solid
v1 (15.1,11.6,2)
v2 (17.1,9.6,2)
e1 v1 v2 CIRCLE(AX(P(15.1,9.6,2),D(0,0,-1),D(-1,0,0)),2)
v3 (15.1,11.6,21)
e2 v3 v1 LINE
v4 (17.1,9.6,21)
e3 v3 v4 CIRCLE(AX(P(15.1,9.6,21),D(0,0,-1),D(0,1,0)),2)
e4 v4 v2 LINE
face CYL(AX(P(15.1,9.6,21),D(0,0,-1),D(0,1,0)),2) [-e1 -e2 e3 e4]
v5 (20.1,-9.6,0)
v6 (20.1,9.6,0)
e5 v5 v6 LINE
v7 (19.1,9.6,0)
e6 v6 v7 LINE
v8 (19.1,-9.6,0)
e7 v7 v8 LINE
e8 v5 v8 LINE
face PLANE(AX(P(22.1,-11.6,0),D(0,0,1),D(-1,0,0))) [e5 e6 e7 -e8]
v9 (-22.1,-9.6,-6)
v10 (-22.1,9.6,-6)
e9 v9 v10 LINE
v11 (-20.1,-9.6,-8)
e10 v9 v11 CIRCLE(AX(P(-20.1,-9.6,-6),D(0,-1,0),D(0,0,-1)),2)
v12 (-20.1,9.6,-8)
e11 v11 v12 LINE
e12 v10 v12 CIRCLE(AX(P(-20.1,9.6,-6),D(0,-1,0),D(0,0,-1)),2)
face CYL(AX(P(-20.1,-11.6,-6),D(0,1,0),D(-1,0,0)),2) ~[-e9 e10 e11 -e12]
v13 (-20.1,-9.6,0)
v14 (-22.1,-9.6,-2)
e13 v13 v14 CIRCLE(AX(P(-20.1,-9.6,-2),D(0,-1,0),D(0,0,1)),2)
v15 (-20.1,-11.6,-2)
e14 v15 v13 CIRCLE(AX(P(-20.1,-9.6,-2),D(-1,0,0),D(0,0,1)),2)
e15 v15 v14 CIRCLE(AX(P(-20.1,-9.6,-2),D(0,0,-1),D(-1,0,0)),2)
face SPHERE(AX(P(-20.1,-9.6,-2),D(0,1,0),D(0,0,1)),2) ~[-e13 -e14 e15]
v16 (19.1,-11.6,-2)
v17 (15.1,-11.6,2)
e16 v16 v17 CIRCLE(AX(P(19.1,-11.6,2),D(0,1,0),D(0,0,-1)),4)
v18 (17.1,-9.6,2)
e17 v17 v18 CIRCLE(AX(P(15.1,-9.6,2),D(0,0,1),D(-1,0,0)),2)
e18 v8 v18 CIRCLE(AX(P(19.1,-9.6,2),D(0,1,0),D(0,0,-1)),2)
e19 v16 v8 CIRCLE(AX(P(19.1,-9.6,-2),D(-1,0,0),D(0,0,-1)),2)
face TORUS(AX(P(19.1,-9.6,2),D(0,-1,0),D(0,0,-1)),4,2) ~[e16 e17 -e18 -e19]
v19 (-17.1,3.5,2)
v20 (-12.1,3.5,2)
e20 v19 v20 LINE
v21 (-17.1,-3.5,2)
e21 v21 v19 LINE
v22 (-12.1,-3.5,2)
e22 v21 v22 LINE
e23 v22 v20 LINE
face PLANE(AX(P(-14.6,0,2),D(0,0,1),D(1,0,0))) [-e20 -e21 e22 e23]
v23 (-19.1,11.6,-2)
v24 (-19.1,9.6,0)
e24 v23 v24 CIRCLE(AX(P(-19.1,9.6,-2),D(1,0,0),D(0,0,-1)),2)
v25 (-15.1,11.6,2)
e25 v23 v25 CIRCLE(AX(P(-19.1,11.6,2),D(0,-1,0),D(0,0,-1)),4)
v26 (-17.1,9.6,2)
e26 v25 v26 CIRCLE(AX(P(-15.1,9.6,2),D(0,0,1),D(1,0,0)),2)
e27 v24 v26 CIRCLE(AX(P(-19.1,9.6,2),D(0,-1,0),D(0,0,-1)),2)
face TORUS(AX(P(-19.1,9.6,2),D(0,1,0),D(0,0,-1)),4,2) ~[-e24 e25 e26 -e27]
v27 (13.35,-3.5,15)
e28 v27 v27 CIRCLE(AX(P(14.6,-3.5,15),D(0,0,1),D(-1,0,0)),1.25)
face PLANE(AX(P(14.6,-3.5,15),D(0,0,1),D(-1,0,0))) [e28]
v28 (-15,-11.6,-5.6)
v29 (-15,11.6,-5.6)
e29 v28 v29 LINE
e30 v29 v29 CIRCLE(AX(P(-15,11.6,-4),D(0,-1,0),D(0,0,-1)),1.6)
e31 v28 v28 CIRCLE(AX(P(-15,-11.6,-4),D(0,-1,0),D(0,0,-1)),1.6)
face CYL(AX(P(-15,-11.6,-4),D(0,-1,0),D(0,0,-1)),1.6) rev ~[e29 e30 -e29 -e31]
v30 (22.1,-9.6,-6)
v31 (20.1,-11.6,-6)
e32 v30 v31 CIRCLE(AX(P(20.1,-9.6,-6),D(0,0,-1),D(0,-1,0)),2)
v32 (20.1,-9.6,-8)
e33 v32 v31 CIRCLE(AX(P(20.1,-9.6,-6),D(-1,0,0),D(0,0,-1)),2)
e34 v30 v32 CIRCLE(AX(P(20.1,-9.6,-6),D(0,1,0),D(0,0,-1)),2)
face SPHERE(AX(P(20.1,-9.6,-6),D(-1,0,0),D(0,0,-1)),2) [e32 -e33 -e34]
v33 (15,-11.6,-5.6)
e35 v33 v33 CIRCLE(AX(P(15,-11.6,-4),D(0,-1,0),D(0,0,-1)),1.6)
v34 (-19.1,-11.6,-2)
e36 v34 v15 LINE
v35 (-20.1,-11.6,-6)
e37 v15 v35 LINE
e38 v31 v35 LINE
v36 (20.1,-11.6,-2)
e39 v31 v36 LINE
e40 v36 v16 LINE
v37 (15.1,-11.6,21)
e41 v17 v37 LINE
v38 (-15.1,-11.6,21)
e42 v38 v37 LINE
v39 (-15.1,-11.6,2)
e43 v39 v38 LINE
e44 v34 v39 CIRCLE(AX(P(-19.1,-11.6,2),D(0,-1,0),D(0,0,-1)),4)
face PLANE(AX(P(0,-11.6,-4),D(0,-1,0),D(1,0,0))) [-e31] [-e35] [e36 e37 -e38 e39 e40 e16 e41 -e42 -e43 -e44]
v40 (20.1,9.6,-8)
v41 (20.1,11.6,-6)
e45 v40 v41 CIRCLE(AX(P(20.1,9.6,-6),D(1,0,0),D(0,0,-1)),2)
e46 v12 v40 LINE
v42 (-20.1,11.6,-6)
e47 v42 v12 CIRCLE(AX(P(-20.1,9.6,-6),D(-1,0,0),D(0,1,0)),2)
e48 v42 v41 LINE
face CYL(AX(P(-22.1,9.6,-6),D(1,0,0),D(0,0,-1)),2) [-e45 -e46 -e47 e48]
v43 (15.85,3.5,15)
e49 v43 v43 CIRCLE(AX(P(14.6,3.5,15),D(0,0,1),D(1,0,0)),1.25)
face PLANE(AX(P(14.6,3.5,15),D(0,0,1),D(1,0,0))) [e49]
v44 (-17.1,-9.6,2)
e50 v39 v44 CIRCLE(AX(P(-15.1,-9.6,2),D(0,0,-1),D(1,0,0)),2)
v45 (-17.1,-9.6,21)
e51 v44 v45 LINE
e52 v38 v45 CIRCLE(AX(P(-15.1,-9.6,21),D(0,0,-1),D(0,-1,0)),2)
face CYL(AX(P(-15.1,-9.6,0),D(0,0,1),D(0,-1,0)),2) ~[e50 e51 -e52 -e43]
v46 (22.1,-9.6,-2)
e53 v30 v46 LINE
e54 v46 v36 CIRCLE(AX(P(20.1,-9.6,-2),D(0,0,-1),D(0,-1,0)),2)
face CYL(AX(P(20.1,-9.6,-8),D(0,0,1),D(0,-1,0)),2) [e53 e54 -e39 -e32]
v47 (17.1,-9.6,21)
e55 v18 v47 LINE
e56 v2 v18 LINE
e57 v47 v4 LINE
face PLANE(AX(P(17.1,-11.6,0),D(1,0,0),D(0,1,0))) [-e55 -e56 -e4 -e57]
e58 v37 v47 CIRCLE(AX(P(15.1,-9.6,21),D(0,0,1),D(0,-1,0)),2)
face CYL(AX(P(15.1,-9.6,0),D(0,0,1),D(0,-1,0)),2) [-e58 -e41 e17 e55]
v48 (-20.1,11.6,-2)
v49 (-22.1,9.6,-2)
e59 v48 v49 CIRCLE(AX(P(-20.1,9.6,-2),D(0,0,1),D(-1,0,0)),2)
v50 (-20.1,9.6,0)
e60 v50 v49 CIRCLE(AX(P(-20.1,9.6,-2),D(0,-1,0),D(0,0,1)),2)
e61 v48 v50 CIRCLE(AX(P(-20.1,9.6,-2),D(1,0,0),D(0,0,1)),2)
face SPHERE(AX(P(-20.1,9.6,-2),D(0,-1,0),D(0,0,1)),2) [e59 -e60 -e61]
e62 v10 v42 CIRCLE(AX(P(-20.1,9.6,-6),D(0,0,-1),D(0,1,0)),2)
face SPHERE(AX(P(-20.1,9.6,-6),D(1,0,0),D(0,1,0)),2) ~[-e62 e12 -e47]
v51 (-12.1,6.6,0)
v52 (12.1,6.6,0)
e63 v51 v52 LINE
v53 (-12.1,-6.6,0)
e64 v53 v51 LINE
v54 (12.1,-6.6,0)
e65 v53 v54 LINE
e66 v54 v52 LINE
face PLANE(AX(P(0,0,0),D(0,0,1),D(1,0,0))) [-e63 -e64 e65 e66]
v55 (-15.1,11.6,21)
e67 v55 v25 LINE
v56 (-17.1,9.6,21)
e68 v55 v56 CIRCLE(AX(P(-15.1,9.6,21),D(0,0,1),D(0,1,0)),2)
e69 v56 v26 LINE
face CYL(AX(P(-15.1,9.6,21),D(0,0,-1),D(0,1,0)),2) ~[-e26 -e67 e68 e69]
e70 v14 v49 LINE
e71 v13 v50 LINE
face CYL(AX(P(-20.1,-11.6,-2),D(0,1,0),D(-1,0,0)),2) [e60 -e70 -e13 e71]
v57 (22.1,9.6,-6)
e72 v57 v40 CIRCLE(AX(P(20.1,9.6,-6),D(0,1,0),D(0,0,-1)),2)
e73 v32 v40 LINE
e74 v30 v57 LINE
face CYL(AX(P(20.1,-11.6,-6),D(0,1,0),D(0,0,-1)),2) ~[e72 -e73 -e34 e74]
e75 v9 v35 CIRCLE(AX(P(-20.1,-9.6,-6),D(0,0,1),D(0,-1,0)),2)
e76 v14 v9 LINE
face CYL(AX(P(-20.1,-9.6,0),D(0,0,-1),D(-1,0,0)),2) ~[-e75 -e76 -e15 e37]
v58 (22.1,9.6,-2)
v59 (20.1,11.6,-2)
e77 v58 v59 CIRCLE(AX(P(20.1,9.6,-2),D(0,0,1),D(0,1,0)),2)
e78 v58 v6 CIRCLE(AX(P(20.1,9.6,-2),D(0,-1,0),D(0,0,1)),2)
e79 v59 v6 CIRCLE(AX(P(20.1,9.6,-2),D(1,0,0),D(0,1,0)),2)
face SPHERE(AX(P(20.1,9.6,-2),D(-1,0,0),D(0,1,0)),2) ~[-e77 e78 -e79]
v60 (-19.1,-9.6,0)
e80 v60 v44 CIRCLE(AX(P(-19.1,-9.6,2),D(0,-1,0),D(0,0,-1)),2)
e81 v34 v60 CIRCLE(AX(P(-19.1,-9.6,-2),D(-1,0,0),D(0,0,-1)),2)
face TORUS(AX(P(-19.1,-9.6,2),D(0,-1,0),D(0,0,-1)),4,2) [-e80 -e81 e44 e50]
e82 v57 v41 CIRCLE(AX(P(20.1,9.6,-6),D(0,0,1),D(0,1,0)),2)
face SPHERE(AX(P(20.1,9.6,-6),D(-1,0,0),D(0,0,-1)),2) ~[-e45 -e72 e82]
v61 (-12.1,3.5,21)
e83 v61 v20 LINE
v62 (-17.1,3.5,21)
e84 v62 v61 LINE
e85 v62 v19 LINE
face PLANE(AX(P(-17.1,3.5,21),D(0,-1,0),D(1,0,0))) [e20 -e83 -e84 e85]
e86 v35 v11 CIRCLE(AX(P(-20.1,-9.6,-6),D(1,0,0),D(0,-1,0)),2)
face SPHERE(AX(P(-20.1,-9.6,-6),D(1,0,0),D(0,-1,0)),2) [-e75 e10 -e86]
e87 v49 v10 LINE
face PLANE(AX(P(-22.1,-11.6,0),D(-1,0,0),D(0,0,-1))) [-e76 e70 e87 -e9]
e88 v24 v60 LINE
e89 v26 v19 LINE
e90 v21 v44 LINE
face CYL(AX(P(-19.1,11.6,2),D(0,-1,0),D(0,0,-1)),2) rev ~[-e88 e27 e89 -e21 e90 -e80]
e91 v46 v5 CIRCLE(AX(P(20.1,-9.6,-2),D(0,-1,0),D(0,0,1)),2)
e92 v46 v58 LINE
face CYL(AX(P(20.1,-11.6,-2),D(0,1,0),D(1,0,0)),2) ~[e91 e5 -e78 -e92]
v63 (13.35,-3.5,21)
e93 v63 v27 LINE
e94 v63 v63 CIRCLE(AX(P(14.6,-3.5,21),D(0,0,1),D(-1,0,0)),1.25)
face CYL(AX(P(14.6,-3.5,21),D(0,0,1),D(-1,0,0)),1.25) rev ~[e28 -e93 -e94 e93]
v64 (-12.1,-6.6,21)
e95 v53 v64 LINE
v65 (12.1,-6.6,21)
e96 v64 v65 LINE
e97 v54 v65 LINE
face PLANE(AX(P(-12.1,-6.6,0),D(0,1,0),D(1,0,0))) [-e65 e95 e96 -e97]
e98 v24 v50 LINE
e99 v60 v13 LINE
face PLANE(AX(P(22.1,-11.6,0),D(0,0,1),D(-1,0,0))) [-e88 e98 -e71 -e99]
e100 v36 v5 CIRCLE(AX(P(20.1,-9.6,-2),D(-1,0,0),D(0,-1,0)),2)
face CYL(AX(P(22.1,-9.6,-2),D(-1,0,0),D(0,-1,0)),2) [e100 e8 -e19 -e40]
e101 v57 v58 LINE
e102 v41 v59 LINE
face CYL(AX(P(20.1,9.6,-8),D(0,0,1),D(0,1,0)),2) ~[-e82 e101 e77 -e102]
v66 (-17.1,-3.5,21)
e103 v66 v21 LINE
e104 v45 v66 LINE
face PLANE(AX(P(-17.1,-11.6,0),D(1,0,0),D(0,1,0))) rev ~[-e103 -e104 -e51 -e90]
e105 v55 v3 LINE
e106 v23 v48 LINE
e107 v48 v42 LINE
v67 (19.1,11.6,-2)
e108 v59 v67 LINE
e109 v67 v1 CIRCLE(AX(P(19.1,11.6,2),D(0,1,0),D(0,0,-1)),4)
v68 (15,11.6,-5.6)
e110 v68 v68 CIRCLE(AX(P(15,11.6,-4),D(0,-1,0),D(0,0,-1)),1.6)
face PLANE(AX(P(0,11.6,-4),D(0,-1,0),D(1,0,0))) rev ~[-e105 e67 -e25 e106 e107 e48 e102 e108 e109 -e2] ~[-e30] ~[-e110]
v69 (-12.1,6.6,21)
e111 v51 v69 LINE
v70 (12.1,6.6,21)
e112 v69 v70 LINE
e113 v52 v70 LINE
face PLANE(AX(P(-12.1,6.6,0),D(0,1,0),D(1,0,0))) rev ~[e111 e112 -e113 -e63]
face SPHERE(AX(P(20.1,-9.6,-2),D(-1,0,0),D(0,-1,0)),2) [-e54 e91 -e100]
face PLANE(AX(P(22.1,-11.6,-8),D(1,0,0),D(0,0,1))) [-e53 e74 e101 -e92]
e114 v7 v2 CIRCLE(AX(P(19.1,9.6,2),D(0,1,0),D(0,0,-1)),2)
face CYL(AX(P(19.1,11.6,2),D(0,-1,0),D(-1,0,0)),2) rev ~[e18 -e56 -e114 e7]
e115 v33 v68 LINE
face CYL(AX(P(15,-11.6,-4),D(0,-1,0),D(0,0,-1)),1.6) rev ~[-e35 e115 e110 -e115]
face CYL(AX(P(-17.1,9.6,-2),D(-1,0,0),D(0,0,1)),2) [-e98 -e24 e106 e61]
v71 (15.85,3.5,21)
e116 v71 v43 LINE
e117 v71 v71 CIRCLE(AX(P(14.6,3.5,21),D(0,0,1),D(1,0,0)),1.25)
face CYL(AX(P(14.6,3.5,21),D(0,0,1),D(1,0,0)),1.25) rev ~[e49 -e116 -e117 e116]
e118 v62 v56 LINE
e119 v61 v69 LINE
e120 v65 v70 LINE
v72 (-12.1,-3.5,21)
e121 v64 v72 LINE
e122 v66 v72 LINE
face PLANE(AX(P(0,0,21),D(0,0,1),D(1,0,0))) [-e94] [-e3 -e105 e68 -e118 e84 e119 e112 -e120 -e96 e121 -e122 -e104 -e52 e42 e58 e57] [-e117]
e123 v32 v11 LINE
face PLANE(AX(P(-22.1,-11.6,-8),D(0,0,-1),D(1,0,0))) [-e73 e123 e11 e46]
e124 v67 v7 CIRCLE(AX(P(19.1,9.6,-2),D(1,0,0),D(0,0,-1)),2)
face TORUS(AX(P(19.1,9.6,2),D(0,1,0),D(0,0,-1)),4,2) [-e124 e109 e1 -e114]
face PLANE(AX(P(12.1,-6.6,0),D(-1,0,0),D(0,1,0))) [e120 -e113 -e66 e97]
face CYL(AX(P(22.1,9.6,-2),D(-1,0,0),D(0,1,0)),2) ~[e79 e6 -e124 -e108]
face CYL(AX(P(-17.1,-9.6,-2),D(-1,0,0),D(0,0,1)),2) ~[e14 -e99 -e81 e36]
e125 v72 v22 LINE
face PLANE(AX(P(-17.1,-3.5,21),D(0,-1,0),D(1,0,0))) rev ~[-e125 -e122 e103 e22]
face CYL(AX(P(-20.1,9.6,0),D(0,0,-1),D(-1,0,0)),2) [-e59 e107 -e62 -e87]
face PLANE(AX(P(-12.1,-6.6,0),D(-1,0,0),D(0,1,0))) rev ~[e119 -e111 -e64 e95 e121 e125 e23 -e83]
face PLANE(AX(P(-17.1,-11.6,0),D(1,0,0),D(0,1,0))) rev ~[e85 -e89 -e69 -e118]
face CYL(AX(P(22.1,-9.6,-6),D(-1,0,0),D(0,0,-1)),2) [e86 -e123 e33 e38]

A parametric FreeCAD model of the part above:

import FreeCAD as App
import Part
import Sketcher
from FreeCAD import Vector


def edges_at(feature, points):
    """Names of the edges that pass closest to the given points."""
    edges = feature.Shape.Edges
    near = lambda p: min(range(len(edges)), key=lambda i: edges[i].distToShape(Part.Vertex(*p))[0])
    return sorted({f"Edge{near(p) + 1}" for p in points})

doc = App.newDocument("Part")
body = doc.addObject("PartDesign::Body", "Body")

# Sketch on XY plane
sketch1 = body.newObject("Sketcher::SketchObject", "Sketch")
sketch1.AttachmentSupport = (doc.getObject("XY_Plane"), [""])
sketch1.MapMode = "FlatFace"
sketch1.addGeometry(Part.LineSegment(Vector(-17.1, 11.6, 0), Vector(-17.1, -11.6, 0)), False)
sketch1.addGeometry(Part.LineSegment(Vector(-17.1, -11.6, 0), Vector(17.1, -11.6, 0)), False)
sketch1.addGeometry(Part.LineSegment(Vector(17.1, -11.6, 0), Vector(17.1, 11.6, 0)), False)
sketch1.addGeometry(Part.LineSegment(Vector(17.1, 11.6, 0), Vector(-17.1, 11.6, 0)), False)
sketch1.addGeometry(Part.LineSegment(Vector(12.1, -6.6, 0), Vector(-12.1, -6.6, 0)), False)
sketch1.addGeometry(Part.LineSegment(Vector(-12.1, -6.6, 0), Vector(-12.1, 6.6, 0)), False)
sketch1.addGeometry(Part.LineSegment(Vector(-12.1, 6.6, 0), Vector(12.1, 6.6, 0)), False)
sketch1.addGeometry(Part.LineSegment(Vector(12.1, 6.6, 0), Vector(12.1, -6.6, 0)), False)
sketch1.addConstraint(Sketcher.Constraint("Coincident", 0, 2, 1, 1))
sketch1.addConstraint(Sketcher.Constraint("Coincident", 1, 2, 2, 1))
sketch1.addConstraint(Sketcher.Constraint("Coincident", 2, 2, 3, 1))
sketch1.addConstraint(Sketcher.Constraint("Coincident", 3, 2, 0, 1))
sketch1.addConstraint(Sketcher.Constraint("Coincident", 4, 2, 5, 1))
sketch1.addConstraint(Sketcher.Constraint("Coincident", 5, 2, 6, 1))
sketch1.addConstraint(Sketcher.Constraint("Coincident", 6, 2, 7, 1))
sketch1.addConstraint(Sketcher.Constraint("Coincident", 7, 2, 4, 1))
sketch1.addConstraint(Sketcher.Constraint("Vertical", 0))
sketch1.addConstraint(Sketcher.Constraint("Horizontal", 1))
sketch1.addConstraint(Sketcher.Constraint("Vertical", 2))
sketch1.addConstraint(Sketcher.Constraint("Horizontal", 3))
sketch1.addConstraint(Sketcher.Constraint("Horizontal", 4))
sketch1.addConstraint(Sketcher.Constraint("Vertical", 5))
sketch1.addConstraint(Sketcher.Constraint("Horizontal", 6))
sketch1.addConstraint(Sketcher.Constraint("Vertical", 7))
sketch1.addConstraint(Sketcher.Constraint("Symmetric", 0, 2, 2, 2, -1, 1))
sketch1.addConstraint(Sketcher.Constraint("Symmetric", 4, 2, 6, 2, -1, 1))
sketch1.addConstraint(Sketcher.Constraint("DistanceX", 1, 1, 1, 2, 34.2))
sketch1.addConstraint(Sketcher.Constraint("DistanceX", 4, 2, 4, 1, 24.2))
sketch1.addConstraint(Sketcher.Constraint("DistanceY", 0, 2, 0, 1, 23.2))
sketch1.addConstraint(Sketcher.Constraint("DistanceY", 5, 1, 5, 2, 13.2))
pad1 = body.newObject("PartDesign::Pad", "Pad")
pad1.Profile = sketch1
pad1.Length = 21

# Sketch on XY plane
sketch2 = body.newObject("Sketcher::SketchObject", "Sketch001")
sketch2.AttachmentSupport = (doc.getObject("XY_Plane"), [""])
sketch2.MapMode = "FlatFace"
sketch2.addGeometry(Part.LineSegment(Vector(-17.1, 11.6, 0), Vector(-17.1, -11.6, 0)), False)
sketch2.addGeometry(Part.LineSegment(Vector(-17.1, -11.6, 0), Vector(17.1, -11.6, 0)), False)
sketch2.addGeometry(Part.LineSegment(Vector(17.1, -11.6, 0), Vector(17.1, 11.6, 0)), False)
sketch2.addGeometry(Part.LineSegment(Vector(17.1, 11.6, 0), Vector(-17.1, 11.6, 0)), False)
sketch2.addConstraint(Sketcher.Constraint("Coincident", 0, 2, 1, 1))
sketch2.addConstraint(Sketcher.Constraint("Coincident", 1, 2, 2, 1))
sketch2.addConstraint(Sketcher.Constraint("Coincident", 2, 2, 3, 1))
sketch2.addConstraint(Sketcher.Constraint("Coincident", 3, 2, 0, 1))
sketch2.addConstraint(Sketcher.Constraint("Vertical", 0))
sketch2.addConstraint(Sketcher.Constraint("Horizontal", 1))
sketch2.addConstraint(Sketcher.Constraint("Vertical", 2))
sketch2.addConstraint(Sketcher.Constraint("Horizontal", 3))
sketch2.addConstraint(Sketcher.Constraint("Symmetric", 0, 2, 2, 2, -1, 1))
sketch2.addConstraint(Sketcher.Constraint("DistanceX", 1, 1, 1, 2, 34.2))
sketch2.addConstraint(Sketcher.Constraint("DistanceY", 0, 2, 0, 1, 23.2))
pad2 = body.newObject("PartDesign::Pad", "Pad001")
pad2.Profile = sketch2
pad2.Length = 8
pad2.Reversed = True

# Sketch on XZ plane
sketch3 = body.newObject("Sketcher::SketchObject", "Sketch002")
sketch3.AttachmentSupport = (doc.getObject("XZ_Plane"), [""])
sketch3.MapMode = "FlatFace"
sketch3.AttachmentOffset = App.Placement(Vector(0, 0, 11.6), App.Rotation())
sketch3.addGeometry(Part.LineSegment(Vector(-22.1, 0, 0), Vector(-22.1, -8, 0)), False)
sketch3.addGeometry(Part.LineSegment(Vector(-22.1, -8, 0), Vector(22.1, -8, 0)), False)
sketch3.addGeometry(Part.LineSegment(Vector(22.1, -8, 0), Vector(22.1, 0, 0)), False)
sketch3.addGeometry(Part.LineSegment(Vector(22.1, 0, 0), Vector(-22.1, 0, 0)), False)
sketch3.addConstraint(Sketcher.Constraint("Coincident", 0, 2, 1, 1))
sketch3.addConstraint(Sketcher.Constraint("Coincident", 1, 2, 2, 1))
sketch3.addConstraint(Sketcher.Constraint("Coincident", 2, 2, 3, 1))
sketch3.addConstraint(Sketcher.Constraint("Coincident", 3, 2, 0, 1))
sketch3.addConstraint(Sketcher.Constraint("Vertical", 0))
sketch3.addConstraint(Sketcher.Constraint("Horizontal", 1))
sketch3.addConstraint(Sketcher.Constraint("Vertical", 2))
sketch3.addConstraint(Sketcher.Constraint("Horizontal", 3))
sketch3.addConstraint(Sketcher.Constraint("Symmetric", 2, 2, 3, 2, -1, 1))
sketch3.addConstraint(Sketcher.Constraint("DistanceY", 0, 2, 0, 1, 8.0))
sketch3.addConstraint(Sketcher.Constraint("DistanceX", 1, 1, 1, 2, 44.2))
pad3 = body.newObject("PartDesign::Pad", "Pad002")
pad3.Profile = sketch3
pad3.Length = 23.2
pad3.Reversed = True

# Sketch on XZ plane
sketch4 = body.newObject("Sketcher::SketchObject", "Sketch003")
sketch4.AttachmentSupport = (doc.getObject("XZ_Plane"), [""])
sketch4.MapMode = "FlatFace"
sketch4.AttachmentOffset = App.Placement(Vector(0, 0, 11.6), App.Rotation())
sketch4.addGeometry(Part.Circle(Vector(-15, -4, 0), Vector(0, 0, 1), 1.6), False)
sketch4.addGeometry(Part.Circle(Vector(15, -4, 0), Vector(0, 0, 1), 1.6), False)
sketch4.addConstraint(Sketcher.Constraint("Equal", 0, 1))
sketch4.addConstraint(Sketcher.Constraint("Symmetric", 0, 3, 1, 3, -2))
sketch4.addConstraint(Sketcher.Constraint("Diameter", 0, 3.2))
sketch4.addConstraint(Sketcher.Constraint("DistanceX", 0, 3, -1, 1, 15.0))
sketch4.addConstraint(Sketcher.Constraint("DistanceY", 0, 3, -1, 1, 4.0))
pocket1 = body.newObject("PartDesign::Pocket", "Pocket")
pocket1.Profile = sketch4
pocket1.Type = "ThroughAll"
doc.recompute()

fillet = body.newObject("PartDesign::Fillet", "Fillet")
fillet.Base = (pocket1, edges_at(pocket1, [
    (0, -11.6, -8),
    (0, 11.6, -8),
    (-17.1, 0, 0),
    (22.1, 0, -8),
    (17.1, 0, 0),
    (-22.1, 0, 0),
    (19.6, -11.6, 0),
    (22.1, -11.6, -4),
    (-19.6, -11.6, 0),
    (-22.1, -11.6, -4),
    (19.6, 11.6, 0),
    (22.1, 11.6, -4),
    (-19.6, 11.6, 0),
    (-22.1, 11.6, -4),
    (22.1, 0, 0),
    (-22.1, 0, -8),
    (-17.1, -11.6, 10.5),
    (-17.1, 11.6, 10.5),
    (17.1, 11.6, 10.5),
    (17.1, -11.6, 10.5),
]))
fillet.Radius = 2

# Sketch on XY plane
sketch5 = body.newObject("Sketcher::SketchObject", "Sketch004")
sketch5.AttachmentSupport = (doc.getObject("XY_Plane"), [""])
sketch5.MapMode = "FlatFace"
sketch5.AttachmentOffset = App.Placement(Vector(0, 0, 21), App.Rotation())
sketch5.addGeometry(Part.LineSegment(Vector(-17.1, 3.5, 0), Vector(-17.1, -3.5, 0)), False)
sketch5.addGeometry(Part.LineSegment(Vector(-17.1, -3.5, 0), Vector(-12.1, -3.5, 0)), False)
sketch5.addGeometry(Part.LineSegment(Vector(-12.1, -3.5, 0), Vector(-12.1, 3.5, 0)), False)
sketch5.addGeometry(Part.LineSegment(Vector(-12.1, 3.5, 0), Vector(-17.1, 3.5, 0)), False)
sketch5.addConstraint(Sketcher.Constraint("Coincident", 0, 2, 1, 1))
sketch5.addConstraint(Sketcher.Constraint("Coincident", 1, 2, 2, 1))
sketch5.addConstraint(Sketcher.Constraint("Coincident", 2, 2, 3, 1))
sketch5.addConstraint(Sketcher.Constraint("Coincident", 3, 2, 0, 1))
sketch5.addConstraint(Sketcher.Constraint("Vertical", 0))
sketch5.addConstraint(Sketcher.Constraint("Horizontal", 1))
sketch5.addConstraint(Sketcher.Constraint("Vertical", 2))
sketch5.addConstraint(Sketcher.Constraint("Horizontal", 3))
sketch5.addConstraint(Sketcher.Constraint("DistanceX", 1, 1, 1, 2, 5.0))
sketch5.addConstraint(Sketcher.Constraint("DistanceY", 0, 2, 0, 1, 7.0))
sketch5.addConstraint(Sketcher.Constraint("DistanceX", 0, 2, -1, 1, 17.1))
sketch5.addConstraint(Sketcher.Constraint("DistanceY", 0, 2, -1, 1, 3.5))
pocket2 = body.newObject("PartDesign::Pocket", "Pocket001")
pocket2.Profile = sketch5
pocket2.Length = 19

# Sketch on XY plane
sketch6 = body.newObject("Sketcher::SketchObject", "Sketch005")
sketch6.AttachmentSupport = (doc.getObject("XY_Plane"), [""])
sketch6.MapMode = "FlatFace"
sketch6.AttachmentOffset = App.Placement(Vector(0, 0, 21), App.Rotation())
sketch6.addGeometry(Part.Circle(Vector(14.6, 3.5, 0), Vector(0, 0, 1), 1.25), False)
sketch6.addGeometry(Part.Circle(Vector(14.6, -3.5, 0), Vector(0, 0, 1), 1.25), False)
sketch6.addConstraint(Sketcher.Constraint("Equal", 0, 1))
sketch6.addConstraint(Sketcher.Constraint("Symmetric", 0, 3, 1, 3, -1))
sketch6.addConstraint(Sketcher.Constraint("Diameter", 0, 2.5))
sketch6.addConstraint(Sketcher.Constraint("DistanceY", 1, 3, 0, 3, 7.0))
sketch6.addConstraint(Sketcher.Constraint("DistanceX", -1, 1, 0, 3, 14.6))
pocket3 = body.newObject("PartDesign::Pocket", "Pocket002")
pocket3.Profile = sketch6
pocket3.Length = 6

doc.recompute()
